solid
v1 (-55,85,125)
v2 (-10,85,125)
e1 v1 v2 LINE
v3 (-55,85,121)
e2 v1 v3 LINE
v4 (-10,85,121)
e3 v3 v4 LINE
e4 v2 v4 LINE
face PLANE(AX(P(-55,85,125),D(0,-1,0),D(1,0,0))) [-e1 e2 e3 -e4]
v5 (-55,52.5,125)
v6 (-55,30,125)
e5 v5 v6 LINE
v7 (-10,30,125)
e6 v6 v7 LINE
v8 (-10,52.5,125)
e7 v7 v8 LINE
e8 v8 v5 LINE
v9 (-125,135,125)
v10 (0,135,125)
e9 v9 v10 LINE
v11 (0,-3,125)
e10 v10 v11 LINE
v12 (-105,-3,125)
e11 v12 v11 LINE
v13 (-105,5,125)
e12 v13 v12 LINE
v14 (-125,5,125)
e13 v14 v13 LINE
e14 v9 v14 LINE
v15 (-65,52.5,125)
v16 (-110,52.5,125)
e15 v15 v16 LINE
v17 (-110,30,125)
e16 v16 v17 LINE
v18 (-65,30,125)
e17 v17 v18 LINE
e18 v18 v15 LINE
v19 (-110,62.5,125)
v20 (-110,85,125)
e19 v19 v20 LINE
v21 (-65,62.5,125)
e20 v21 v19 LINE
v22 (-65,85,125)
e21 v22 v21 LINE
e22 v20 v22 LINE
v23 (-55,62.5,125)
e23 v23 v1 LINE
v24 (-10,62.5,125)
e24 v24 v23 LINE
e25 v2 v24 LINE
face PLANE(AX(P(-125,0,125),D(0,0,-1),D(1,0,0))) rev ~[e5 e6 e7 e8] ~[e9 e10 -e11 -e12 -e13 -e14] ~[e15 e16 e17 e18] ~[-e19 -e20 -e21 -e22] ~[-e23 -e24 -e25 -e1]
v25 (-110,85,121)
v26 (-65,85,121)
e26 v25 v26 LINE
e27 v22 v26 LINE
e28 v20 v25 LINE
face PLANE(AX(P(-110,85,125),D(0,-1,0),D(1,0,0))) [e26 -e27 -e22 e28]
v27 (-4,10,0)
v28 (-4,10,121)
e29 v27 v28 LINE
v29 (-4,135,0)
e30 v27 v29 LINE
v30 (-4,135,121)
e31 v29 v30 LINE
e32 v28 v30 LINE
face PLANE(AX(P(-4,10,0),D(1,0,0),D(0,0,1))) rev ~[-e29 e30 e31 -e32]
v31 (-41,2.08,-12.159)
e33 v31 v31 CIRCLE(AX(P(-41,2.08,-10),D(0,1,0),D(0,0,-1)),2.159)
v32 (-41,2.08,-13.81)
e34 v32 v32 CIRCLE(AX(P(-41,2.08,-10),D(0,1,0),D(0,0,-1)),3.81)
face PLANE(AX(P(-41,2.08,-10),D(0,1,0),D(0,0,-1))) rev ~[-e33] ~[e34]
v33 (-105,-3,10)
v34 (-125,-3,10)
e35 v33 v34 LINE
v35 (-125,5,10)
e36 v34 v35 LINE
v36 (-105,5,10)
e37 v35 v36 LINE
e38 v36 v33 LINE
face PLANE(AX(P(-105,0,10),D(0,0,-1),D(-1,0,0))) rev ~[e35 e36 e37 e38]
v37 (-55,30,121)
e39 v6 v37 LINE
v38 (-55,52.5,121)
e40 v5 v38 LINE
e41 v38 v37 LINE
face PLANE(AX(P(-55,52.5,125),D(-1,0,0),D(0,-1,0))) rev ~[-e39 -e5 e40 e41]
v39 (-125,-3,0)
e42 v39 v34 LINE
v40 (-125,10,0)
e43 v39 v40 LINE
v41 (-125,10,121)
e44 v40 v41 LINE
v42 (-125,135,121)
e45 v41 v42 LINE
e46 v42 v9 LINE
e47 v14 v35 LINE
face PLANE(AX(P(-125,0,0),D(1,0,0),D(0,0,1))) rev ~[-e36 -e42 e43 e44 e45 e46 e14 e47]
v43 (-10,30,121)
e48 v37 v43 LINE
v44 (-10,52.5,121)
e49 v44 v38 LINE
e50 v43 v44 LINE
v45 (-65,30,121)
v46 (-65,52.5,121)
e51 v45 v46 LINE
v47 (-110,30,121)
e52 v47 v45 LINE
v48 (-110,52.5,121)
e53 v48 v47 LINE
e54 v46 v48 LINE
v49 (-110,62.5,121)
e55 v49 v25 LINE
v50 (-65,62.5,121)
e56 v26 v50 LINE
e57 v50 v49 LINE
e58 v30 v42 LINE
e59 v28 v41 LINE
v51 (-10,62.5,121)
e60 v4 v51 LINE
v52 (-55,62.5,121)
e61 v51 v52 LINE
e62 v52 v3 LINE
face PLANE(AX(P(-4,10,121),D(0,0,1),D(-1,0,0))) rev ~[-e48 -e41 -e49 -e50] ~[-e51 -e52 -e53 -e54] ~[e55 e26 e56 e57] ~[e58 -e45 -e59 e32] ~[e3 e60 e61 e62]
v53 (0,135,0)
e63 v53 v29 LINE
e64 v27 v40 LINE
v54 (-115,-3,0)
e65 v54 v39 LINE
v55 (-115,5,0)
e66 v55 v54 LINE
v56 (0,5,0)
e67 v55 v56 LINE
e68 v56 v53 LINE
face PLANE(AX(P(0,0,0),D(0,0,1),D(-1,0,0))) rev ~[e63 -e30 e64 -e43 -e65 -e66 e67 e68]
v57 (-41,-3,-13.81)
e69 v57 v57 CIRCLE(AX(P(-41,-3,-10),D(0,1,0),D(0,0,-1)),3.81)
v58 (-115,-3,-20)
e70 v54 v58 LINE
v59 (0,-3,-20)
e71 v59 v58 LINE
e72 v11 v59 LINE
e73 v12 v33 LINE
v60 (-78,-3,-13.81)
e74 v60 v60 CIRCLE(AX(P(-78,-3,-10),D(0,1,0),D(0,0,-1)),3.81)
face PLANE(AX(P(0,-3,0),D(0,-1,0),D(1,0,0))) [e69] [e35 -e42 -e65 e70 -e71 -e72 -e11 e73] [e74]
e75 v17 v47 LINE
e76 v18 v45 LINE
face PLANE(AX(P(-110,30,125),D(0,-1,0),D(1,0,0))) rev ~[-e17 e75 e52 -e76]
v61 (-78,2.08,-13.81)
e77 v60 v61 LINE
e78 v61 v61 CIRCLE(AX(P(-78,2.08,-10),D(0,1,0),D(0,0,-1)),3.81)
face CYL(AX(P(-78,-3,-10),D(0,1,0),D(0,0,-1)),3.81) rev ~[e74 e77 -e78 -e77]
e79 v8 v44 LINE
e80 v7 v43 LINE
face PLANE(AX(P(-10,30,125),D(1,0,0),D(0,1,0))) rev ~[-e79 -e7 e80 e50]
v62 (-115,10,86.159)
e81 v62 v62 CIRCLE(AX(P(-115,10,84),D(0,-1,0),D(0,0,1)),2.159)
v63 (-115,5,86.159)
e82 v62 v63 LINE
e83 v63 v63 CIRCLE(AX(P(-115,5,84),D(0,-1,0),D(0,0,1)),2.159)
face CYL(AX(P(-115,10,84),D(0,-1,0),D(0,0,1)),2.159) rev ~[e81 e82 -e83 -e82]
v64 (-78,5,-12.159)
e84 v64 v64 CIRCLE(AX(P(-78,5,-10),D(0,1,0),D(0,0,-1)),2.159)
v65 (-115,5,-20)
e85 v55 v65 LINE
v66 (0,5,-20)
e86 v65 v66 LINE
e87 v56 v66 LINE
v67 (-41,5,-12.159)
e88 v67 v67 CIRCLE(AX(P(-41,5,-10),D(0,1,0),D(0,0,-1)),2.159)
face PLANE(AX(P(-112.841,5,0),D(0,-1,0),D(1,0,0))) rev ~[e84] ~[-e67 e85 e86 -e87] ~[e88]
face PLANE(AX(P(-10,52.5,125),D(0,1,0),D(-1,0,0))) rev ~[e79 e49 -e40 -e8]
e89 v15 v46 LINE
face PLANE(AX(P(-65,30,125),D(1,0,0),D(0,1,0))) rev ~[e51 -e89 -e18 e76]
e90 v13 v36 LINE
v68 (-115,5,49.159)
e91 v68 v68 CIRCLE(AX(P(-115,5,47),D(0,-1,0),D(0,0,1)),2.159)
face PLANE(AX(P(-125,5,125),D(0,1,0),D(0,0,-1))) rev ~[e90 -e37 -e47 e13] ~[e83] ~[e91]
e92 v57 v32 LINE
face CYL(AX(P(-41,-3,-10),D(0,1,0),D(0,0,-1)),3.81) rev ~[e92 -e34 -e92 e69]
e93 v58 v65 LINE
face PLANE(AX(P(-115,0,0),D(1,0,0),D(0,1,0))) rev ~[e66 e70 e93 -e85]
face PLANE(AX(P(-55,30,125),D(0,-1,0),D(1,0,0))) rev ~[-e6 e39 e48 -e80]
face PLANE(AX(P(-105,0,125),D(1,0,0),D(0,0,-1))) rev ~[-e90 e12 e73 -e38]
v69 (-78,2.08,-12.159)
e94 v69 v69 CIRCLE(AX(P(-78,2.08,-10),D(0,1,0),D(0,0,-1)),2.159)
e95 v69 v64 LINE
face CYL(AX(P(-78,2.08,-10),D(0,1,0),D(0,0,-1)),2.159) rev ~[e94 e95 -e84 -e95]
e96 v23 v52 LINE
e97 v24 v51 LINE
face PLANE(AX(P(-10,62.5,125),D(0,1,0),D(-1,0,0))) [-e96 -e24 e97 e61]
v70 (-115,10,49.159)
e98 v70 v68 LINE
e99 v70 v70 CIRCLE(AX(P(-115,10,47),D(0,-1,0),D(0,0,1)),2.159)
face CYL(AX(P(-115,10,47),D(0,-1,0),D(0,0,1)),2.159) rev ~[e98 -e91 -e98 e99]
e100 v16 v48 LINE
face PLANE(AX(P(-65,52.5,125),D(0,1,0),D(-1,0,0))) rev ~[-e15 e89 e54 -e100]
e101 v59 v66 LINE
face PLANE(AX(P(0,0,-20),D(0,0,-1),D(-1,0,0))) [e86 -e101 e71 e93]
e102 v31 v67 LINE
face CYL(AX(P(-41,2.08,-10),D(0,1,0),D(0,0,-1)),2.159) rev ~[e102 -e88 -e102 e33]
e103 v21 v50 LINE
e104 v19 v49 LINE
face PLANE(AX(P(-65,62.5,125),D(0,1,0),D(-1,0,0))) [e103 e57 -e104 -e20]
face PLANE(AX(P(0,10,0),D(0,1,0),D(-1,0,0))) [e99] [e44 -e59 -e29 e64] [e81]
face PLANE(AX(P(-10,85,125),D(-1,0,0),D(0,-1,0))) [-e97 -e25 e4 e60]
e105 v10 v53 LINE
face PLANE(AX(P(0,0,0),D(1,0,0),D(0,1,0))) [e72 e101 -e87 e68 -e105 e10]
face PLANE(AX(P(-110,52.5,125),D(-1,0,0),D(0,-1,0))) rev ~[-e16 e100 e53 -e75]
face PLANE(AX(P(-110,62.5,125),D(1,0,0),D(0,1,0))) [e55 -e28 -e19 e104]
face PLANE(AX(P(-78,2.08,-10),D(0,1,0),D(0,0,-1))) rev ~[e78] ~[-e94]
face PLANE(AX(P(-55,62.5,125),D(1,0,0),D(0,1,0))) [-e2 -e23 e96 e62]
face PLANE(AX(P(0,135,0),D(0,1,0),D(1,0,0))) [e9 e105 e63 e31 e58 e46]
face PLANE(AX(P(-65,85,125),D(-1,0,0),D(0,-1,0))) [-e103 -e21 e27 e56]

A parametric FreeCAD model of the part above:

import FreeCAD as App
import Part
import Sketcher

doc = App.newDocument("Part")
body = doc.addObject("PartDesign::Body", "Body")

sketch1 = doc.addObject("Sketcher::SketchObject", "Sketch")
body.addObject(sketch1)
sketch1.AttachmentSupport = (doc.XZ_Plane, [""])
sketch1.MapMode = "FlatFace"
sketch1.addGeometry([
    Part.LineSegment(App.Vector(0, 125, 0), App.Vector(0, 0, 0)),
    Part.LineSegment(App.Vector(0, 0, 0), App.Vector(-125, 0, 0)),
    Part.LineSegment(App.Vector(-125, 0, 0), App.Vector(-125, 125, 0)),
    Part.LineSegment(App.Vector(-125, 125, 0), App.Vector(0, 125, 0)),
], False)
sketch1.addConstraint([
    Sketcher.Constraint("Coincident", 0, 2, 1, 1),
    Sketcher.Constraint("Coincident", 1, 2, 2, 1),
    Sketcher.Constraint("Coincident", 2, 2, 3, 1),
    Sketcher.Constraint("Coincident", 3, 2, 0, 1),
    Sketcher.Constraint("Vertical", 0),
    Sketcher.Constraint("Horizontal", 1),
    Sketcher.Constraint("Vertical", 2),
    Sketcher.Constraint("Horizontal", 3),
    Sketcher.Constraint("Coincident", 0, 2, -1, 1),
    Sketcher.Constraint("Equal", 3, 0),
    Sketcher.Constraint("DistanceX", 1, 2, 1, 1, 125.0),
])
pad1 = doc.addObject("PartDesign::Pad", "Pad")
body.addObject(pad1)
pad1.Profile = sketch1
pad1.Length = 10
pad1.Reversed = True

sketch2 = doc.addObject("Sketcher::SketchObject", "Sketch001")
body.addObject(sketch2)
sketch2.AttachmentSupport = (doc.XZ_Plane, [""])
sketch2.MapMode = "FlatFace"
sketch2.AttachmentOffset = App.Placement(App.Vector(0, 0, -10), App.Rotation())
sketch2.addGeometry([
    Part.LineSegment(App.Vector(0, 125, 0), App.Vector(0, 0, 0)),
    Part.LineSegment(App.Vector(0, 0, 0), App.Vector(-4, 0, 0)),
    Part.LineSegment(App.Vector(-4, 0, 0), App.Vector(-4, 121, 0)),
    Part.LineSegment(App.Vector(-4, 121, 0), App.Vector(-125, 121, 0)),
    Part.LineSegment(App.Vector(-125, 121, 0), App.Vector(-125, 125, 0)),
    Part.LineSegment(App.Vector(-125, 125, 0), App.Vector(0, 125, 0)),
], False)
sketch2.addConstraint([
    Sketcher.Constraint("Coincident", 0, 2, 1, 1),
    Sketcher.Constraint("Coincident", 1, 2, 2, 1),
    Sketcher.Constraint("Coincident", 2, 2, 3, 1),
    Sketcher.Constraint("Coincident", 3, 2, 4, 1),
    Sketcher.Constraint("Coincident", 4, 2, 5, 1),
    Sketcher.Constraint("Coincident", 5, 2, 0, 1),
    Sketcher.Constraint("Vertical", 0),
    Sketcher.Constraint("Horizontal", 1),
    Sketcher.Constraint("Vertical", 2),
    Sketcher.Constraint("Horizontal", 3),
    Sketcher.Constraint("Vertical", 4),
    Sketcher.Constraint("Horizontal", 5),
    Sketcher.Constraint("Coincident", 0, 2, -1, 1),
    Sketcher.Constraint("Equal", 5, 0),
    Sketcher.Constraint("Equal", 3, 2),
    Sketcher.Constraint("DistanceX", 1, 2, 1, 1, 4.0),
    Sketcher.Constraint("DistanceX", 3, 2, 3, 1, 121.0),
])
pad2 = doc.addObject("PartDesign::Pad", "Pad001")
body.addObject(pad2)
pad2.Profile = sketch2
pad2.Length = 125
pad2.Reversed = True

sketch3 = doc.addObject("Sketcher::SketchObject", "Sketch002")
body.addObject(sketch3)
sketch3.AttachmentSupport = (doc.XY_Plane, [""])
sketch3.MapMode = "FlatFace"
sketch3.AttachmentOffset = App.Placement(App.Vector(0, 0, 125), App.Rotation())
sketch3.addGeometry([
    Part.LineSegment(App.Vector(-110, 52, 0), App.Vector(-110, 30, 0)),
    Part.LineSegment(App.Vector(-110, 30, 0), App.Vector(-65, 30, 0)),
    Part.LineSegment(App.Vector(-65, 30, 0), App.Vector(-65, 52, 0)),
    Part.LineSegment(App.Vector(-65, 52, 0), App.Vector(-110, 52, 0)),
    Part.LineSegment(App.Vector(-55, 85, 0), App.Vector(-55, 62, 0)),
    Part.LineSegment(App.Vector(-55, 62, 0), App.Vector(-10, 62, 0)),
    Part.LineSegment(App.Vector(-10, 62, 0), App.Vector(-10, 85, 0)),
    Part.LineSegment(App.Vector(-10, 85, 0), App.Vector(-55, 85, 0)),
    Part.LineSegment(App.Vector(-10, 52, 0), App.Vector(-55, 52, 0)),
    Part.LineSegment(App.Vector(-55, 52, 0), App.Vector(-55, 30, 0)),
    Part.LineSegment(App.Vector(-55, 30, 0), App.Vector(-10, 30, 0)),
    Part.LineSegment(App.Vector(-10, 30, 0), App.Vector(-10, 52, 0)),
    Part.LineSegment(App.Vector(-110, 85, 0), App.Vector(-110, 62, 0)),
    Part.LineSegment(App.Vector(-110, 62, 0), App.Vector(-65, 62, 0)),
    Part.LineSegment(App.Vector(-65, 62, 0), App.Vector(-65, 85, 0)),
    Part.LineSegment(App.Vector(-65, 85, 0), App.Vector(-110, 85, 0)),
], False)
sketch3.addConstraint([
    Sketcher.Constraint("Coincident", 0, 2, 1, 1),
    Sketcher.Constraint("Coincident", 1, 2, 2, 1),
    Sketcher.Constraint("Coincident", 2, 2, 3, 1),
    Sketcher.Constraint("Coincident", 3, 2, 0, 1),
    Sketcher.Constraint("Coincident", 4, 2, 5, 1),
    Sketcher.Constraint("Coincident", 5, 2, 6, 1),
    Sketcher.Constraint("Coincident", 6, 2, 7, 1),
    Sketcher.Constraint("Coincident", 7, 2, 4, 1),
    Sketcher.Constraint("Coincident", 8, 2, 9, 1),
    Sketcher.Constraint("Coincident", 9, 2, 10, 1),
    Sketcher.Constraint("Coincident", 10, 2, 11, 1),
    Sketcher.Constraint("Coincident", 11, 2, 8, 1),
    Sketcher.Constraint("Coincident", 12, 2, 13, 1),
    Sketcher.Constraint("Coincident", 13, 2, 14, 1),
    Sketcher.Constraint("Coincident", 14, 2, 15, 1),
    Sketcher.Constraint("Coincident", 15, 2, 12, 1),
    Sketcher.Constraint("Vertical", 0),
    Sketcher.Constraint("Horizontal", 1),
    Sketcher.Constraint("Vertical", 2),
    Sketcher.Constraint("Horizontal", 3),
    Sketcher.Constraint("Vertical", 4),
    Sketcher.Constraint("Horizontal", 5),
    Sketcher.Constraint("Vertical", 6),
    Sketcher.Constraint("Horizontal", 7),
    Sketcher.Constraint("Horizontal", 8),
    Sketcher.Constraint("Vertical", 9),
    Sketcher.Constraint("Horizontal", 10),
    Sketcher.Constraint("Vertical", 11),
    Sketcher.Constraint("Vertical", 12),
    Sketcher.Constraint("Horizontal", 13),
    Sketcher.Constraint("Vertical", 14),
    Sketcher.Constraint("Horizontal", 15),
    Sketcher.Constraint("Horizontal", 3, 2, 8, 2),
    Sketcher.Constraint("Horizontal", 1, 2, 9, 2),
    Sketcher.Constraint("Horizontal", 5, 2, 12, 2),
    Sketcher.Constraint("Horizontal", 7, 2, 14, 2),
    Sketcher.Constraint("Vertical", 7, 2, 8, 2),
    Sketcher.Constraint("Vertical", 6, 2, 10, 2),
    Sketcher.Constraint("Vertical", 3, 2, 12, 2),
    Sketcher.Constraint("Vertical", 2, 2, 13, 2),
    Sketcher.Constraint("Equal", 3, 5),
    Sketcher.Constraint("Equal", 2, 4),
    Sketcher.Constraint("DistanceX", 1, 1, 1, 2, 45.0),
    Sketcher.Constraint("DistanceY", 0, 2, 0, 1, 22.5),
    Sketcher.Constraint("DistanceX", 5, 2, -1, 1, 10.0),
    Sketcher.Constraint("DistanceX", 2, 2, 4, 2, 10.0),
    Sketcher.Constraint("DistanceY", 2, 2, 4, 2, 10.0),
    Sketcher.Constraint("DistanceY", -1, 1, 0, 2, 30.0),
])
pocket1 = doc.addObject("PartDesign::Pocket", "Pocket")
body.addObject(pocket1)
pocket1.Profile = sketch3
pocket1.Length = 10

sketch4 = doc.addObject("Sketcher::SketchObject", "Sketch003")
body.addObject(sketch4)
sketch4.AttachmentSupport = (doc.YZ_Plane, [""])
sketch4.MapMode = "FlatFace"
sketch4.AttachmentOffset = App.Placement(App.Vector(0, 0, -125), App.Rotation())
sketch4.addGeometry([
    Part.LineSegment(App.Vector(5, 10, 0), App.Vector(0, 10, 0)),
    Part.LineSegment(App.Vector(0, 10, 0), App.Vector(0, 125, 0)),
    Part.LineSegment(App.Vector(0, 125, 0), App.Vector(5, 125, 0)),
    Part.LineSegment(App.Vector(5, 125, 0), App.Vector(5, 10, 0)),
], False)
sketch4.addConstraint([
    Sketcher.Constraint("Coincident", 0, 2, 1, 1),
    Sketcher.Constraint("Coincident", 1, 2, 2, 1),
    Sketcher.Constraint("Coincident", 2, 2, 3, 1),
    Sketcher.Constraint("Coincident", 3, 2, 0, 1),
    Sketcher.Constraint("Horizontal", 0),
    Sketcher.Constraint("Vertical", 1),
    Sketcher.Constraint("Horizontal", 2),
    Sketcher.Constraint("Vertical", 3),
    Sketcher.Constraint("PointOnObject", 0, 2, -2),
    Sketcher.Constraint("DistanceX", 0, 2, 0, 1, 5.0),
    Sketcher.Constraint("DistanceY", 1, 1, 1, 2, 115.0),
    Sketcher.Constraint("DistanceY", -1, 1, 1, 2, 125.0),
])
pocket2 = doc.addObject("PartDesign::Pocket", "Pocket001")
body.addObject(pocket2)
pocket2.Profile = sketch4
pocket2.Length = 20
pocket2.Reversed = True

sketch5 = doc.addObject("Sketcher::SketchObject", "Sketch004")
body.addObject(sketch5)
sketch5.AttachmentSupport = (doc.XZ_Plane, [""])
sketch5.MapMode = "FlatFace"
sketch5.AttachmentOffset = App.Placement(App.Vector(0, 0, -10), App.Rotation())
sketch5.addGeometry([
    Part.Circle(App.Vector(-115, 84, 0), App.Vector(0, 0, 1), 2.2),
    Part.Circle(App.Vector(-115, 47, 0), App.Vector(0, 0, 1), 2.2),
], False)
sketch5.addConstraint([
    Sketcher.Constraint("Equal", 0, 1),
    Sketcher.Constraint("Vertical", 0, 3, 1, 3),
    Sketcher.Constraint("Diameter", 0, 4.318),
    Sketcher.Constraint("DistanceX", 0, 3, -1, 1, 115.0),
    Sketcher.Constraint("DistanceY", -1, 1, 0, 3, 84.0),
    Sketcher.Constraint("DistanceY", -1, 1, 1, 3, 47.0),
])
doc.recompute()
hole = doc.addObject("PartDesign::Hole", "Hole")
body.addObject(hole)
hole.Profile = sketch5
hole.ThreadType = "None"
hole.Diameter = 4.318
hole.DepthType = "ThroughAll"
hole.Reversed = True

sketch6 = doc.addObject("Sketcher::SketchObject", "Sketch005")
body.addObject(sketch6)
sketch6.AttachmentSupport = (doc.XY_Plane, [""])
sketch6.MapMode = "FlatFace"
sketch6.addGeometry([
    Part.LineSegment(App.Vector(0, 0, 0), App.Vector(-115, 0, 0)),
    Part.LineSegment(App.Vector(-115, 0, 0), App.Vector(-115, 5, 0)),
    Part.LineSegment(App.Vector(-115, 5, 0), App.Vector(0, 5, 0)),
    Part.LineSegment(App.Vector(0, 5, 0), App.Vector(0, 0, 0)),
], False)
sketch6.addConstraint([
    Sketcher.Constraint("Coincident", 0, 2, 1, 1),
    Sketcher.Constraint("Coincident", 1, 2, 2, 1),
    Sketcher.Constraint("Coincident", 2, 2, 3, 1),
    Sketcher.Constraint("Coincident", 3, 2, 0, 1),
    Sketcher.Constraint("Horizontal", 0),
    Sketcher.Constraint("Vertical", 1),
    Sketcher.Constraint("Horizontal", 2),
    Sketcher.Constraint("Vertical", 3),
    Sketcher.Constraint("Coincident", 3, 2, -1, 1),
    Sketcher.Constraint("DistanceX", 0, 2, 0, 1, 115.0),
    Sketcher.Constraint("DistanceY", 1, 1, 1, 2, 5.0),
])
pad3 = doc.addObject("PartDesign::Pad", "Pad002")
body.addObject(pad3)
pad3.Profile = sketch6
pad3.Length = 20
pad3.Reversed = True

sketch7 = doc.addObject("Sketcher::SketchObject", "Sketch006")
body.addObject(sketch7)
sketch7.AttachmentSupport = (doc.XZ_Plane, [""])
sketch7.MapMode = "FlatFace"
sketch7.AttachmentOffset = App.Placement(App.Vector(0, 0, -10), App.Rotation())
sketch7.addGeometry([
    Part.Circle(App.Vector(-41, -10, 0), App.Vector(0, 0, 1), 1.8),
    Part.Circle(App.Vector(-78, -10, 0), App.Vector(0, 0, 1), 1.8),
], False)
sketch7.addConstraint([
    Sketcher.Constraint("Equal", 0, 1),
    Sketcher.Constraint("Horizontal", 0, 3, 1, 3),
    Sketcher.Constraint("Diameter", 0, 3.5),
    Sketcher.Constraint("DistanceX", 0, 3, -1, 1, 41.0),
    Sketcher.Constraint("DistanceY", 0, 3, -1, 1, 10.0),
    Sketcher.Constraint("DistanceX", 1, 3, -1, 1, 78.0),
])
doc.recompute()
hole2 = doc.addObject("PartDesign::Hole", "Hole001")
body.addObject(hole2)
hole2.Profile = sketch7
hole2.ThreadType = "None"
hole2.Diameter = 3.5
hole2.DepthType = "ThroughAll"
hole2.Reversed = True

sketch8 = doc.addObject("Sketcher::SketchObject", "Sketch007")
body.addObject(sketch8)
sketch8.AttachmentSupport = (doc.XZ_Plane, [""])
sketch8.MapMode = "FlatFace"
sketch8.addGeometry([
    Part.LineSegment(App.Vector(0, -20, 0), App.Vector(0, 125, 0)),
    Part.LineSegment(App.Vector(0, 125, 0), App.Vector(-105, 125, 0)),
    Part.LineSegment(App.Vector(-105, 125, 0), App.Vector(-105, 10, 0)),
    Part.LineSegment(App.Vector(-105, 10, 0), App.Vector(-125, 10, 0)),
    Part.LineSegment(App.Vector(-125, 10, 0), App.Vector(-125, 0, 0)),
    Part.LineSegment(App.Vector(-125, 0, 0), App.Vector(-115, 0, 0)),
    Part.LineSegment(App.Vector(-115, 0, 0), App.Vector(-115, -20, 0)),
    Part.LineSegment(App.Vector(-115, -20, 0), App.Vector(0, -20, 0)),
    Part.Circle(App.Vector(-78, -10, 0), App.Vector(0, 0, 1), 1.8),
    Part.Circle(App.Vector(-41, -10, 0), App.Vector(0, 0, 1), 1.8),
], False)
sketch8.addConstraint([
    Sketcher.Constraint("Coincident", 0, 2, 1, 1),
    Sketcher.Constraint("Coincident", 1, 2, 2, 1),
    Sketcher.Constraint("Coincident", 2, 2, 3, 1),
    Sketcher.Constraint("Coincident", 3, 2, 4, 1),
    Sketcher.Constraint("Coincident", 4, 2, 5, 1),
    Sketcher.Constraint("Coincident", 5, 2, 6, 1),
    Sketcher.Constraint("Coincident", 6, 2, 7, 1),
    Sketcher.Constraint("Coincident", 7, 2, 0, 1),
    Sketcher.Constraint("Vertical", 0),
    Sketcher.Constraint("Horizontal", 1),
    Sketcher.Constraint("Vertical", 2),
    Sketcher.Constraint("Horizontal", 3),
    Sketcher.Constraint("Vertical", 4),
    Sketcher.Constraint("Horizontal", 5),
    Sketcher.Constraint("Vertical", 6),
    Sketcher.Constraint("Horizontal", 7),
    Sketcher.Constraint("Equal", 8, 9),
    Sketcher.Constraint("PointOnObject", 0, 2, -2),
    Sketcher.Constraint("PointOnObject", 4, 2, -1),
    Sketcher.Constraint("Horizontal", 8, 3, 9, 3),
    Sketcher.Constraint("Equal", 7, 2),
    Sketcher.Constraint("Equal", 5, 4),
    Sketcher.Constraint("Equal", 3, 6),
    Sketcher.Constraint("Diameter", 8, 3.5),
    Sketcher.Constraint("DistanceX", 1, 2, 1, 1, 105.0),
    Sketcher.Constraint("DistanceX", 3, 2, 3, 1, 20.0),
    Sketcher.Constraint("DistanceX", 5, 1, 5, 2, 10.0),
    Sketcher.Constraint("DistanceX", 8, 3, -1, 1, 78.0),
    Sketcher.Constraint("DistanceY", 8, 3, -1, 1, 10.0),
    Sketcher.Constraint("DistanceX", 9, 3, -1, 1, 41.0),
])
pad4 = doc.addObject("PartDesign::Pad", "Pad003")
body.addObject(pad4)
pad4.Profile = sketch8
pad4.Length = 3

sketch9 = doc.addObject("Sketcher::SketchObject", "Sketch008")
body.addObject(sketch9)
sketch9.AttachmentSupport = (doc.XZ_Plane, [""])
sketch9.MapMode = "FlatFace"
sketch9.AttachmentOffset = App.Placement(App.Vector(0, 0, 3), App.Rotation())
sketch9.addGeometry([
    Part.Circle(App.Vector(-78, -10, 0), App.Vector(0, 0, 1), 2.2),
    Part.Circle(App.Vector(-41, -10, 0), App.Vector(0, 0, 1), 2.2),
], False)
sketch9.addConstraint([
    Sketcher.Constraint("Equal", 0, 1),
    Sketcher.Constraint("Horizontal", 0, 3, 1, 3),
    Sketcher.Constraint("Diameter", 0, 4.318),
    Sketcher.Constraint("DistanceX", 0, 3, -1, 1, 78.0),
    Sketcher.Constraint("DistanceY", 0, 3, -1, 1, 10.0),
    Sketcher.Constraint("DistanceX", 1, 3, -1, 1, 41.0),
])
doc.recompute()
hole3 = doc.addObject("PartDesign::Hole", "Hole002")
body.addObject(hole3)
hole3.Profile = sketch9
hole3.ThreadType = "None"
hole3.Diameter = 4.318
hole3.DepthType = "ThroughAll"
hole3.HoleCutType = "Counterbore"
hole3.HoleCutDiameter = 7.62
hole3.HoleCutDepth = 5.08

doc.recompute()
